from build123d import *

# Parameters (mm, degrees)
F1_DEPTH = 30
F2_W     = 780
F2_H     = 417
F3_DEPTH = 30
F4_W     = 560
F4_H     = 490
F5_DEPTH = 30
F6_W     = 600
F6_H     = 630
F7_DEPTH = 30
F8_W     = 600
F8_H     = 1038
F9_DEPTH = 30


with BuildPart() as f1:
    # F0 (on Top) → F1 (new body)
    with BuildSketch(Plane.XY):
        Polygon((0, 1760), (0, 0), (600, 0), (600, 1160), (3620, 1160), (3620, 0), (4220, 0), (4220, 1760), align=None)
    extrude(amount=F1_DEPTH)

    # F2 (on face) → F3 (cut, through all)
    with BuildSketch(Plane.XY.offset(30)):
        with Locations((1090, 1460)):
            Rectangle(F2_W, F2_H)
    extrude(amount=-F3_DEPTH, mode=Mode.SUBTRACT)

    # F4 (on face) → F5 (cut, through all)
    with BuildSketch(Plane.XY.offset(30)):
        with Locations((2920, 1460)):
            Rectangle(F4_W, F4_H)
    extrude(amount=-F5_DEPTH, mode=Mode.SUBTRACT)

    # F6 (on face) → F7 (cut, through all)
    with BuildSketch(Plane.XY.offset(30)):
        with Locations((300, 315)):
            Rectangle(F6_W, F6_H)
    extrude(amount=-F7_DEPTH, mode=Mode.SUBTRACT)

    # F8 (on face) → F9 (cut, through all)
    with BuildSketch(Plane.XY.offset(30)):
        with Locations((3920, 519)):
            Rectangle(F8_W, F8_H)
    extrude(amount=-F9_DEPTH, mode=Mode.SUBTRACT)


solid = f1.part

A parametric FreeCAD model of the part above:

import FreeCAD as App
import Part
import Sketcher
Q = App.Units.Quantity


def add_polygon(sketch, points):
    """Adds a closed chain of lines whose ends are joined by coincident constraints."""
    first, n = sketch.GeometryCount, len(points)
    for a, b in zip(points, points[1:] + points[:1]):
        sketch.addGeometry(Part.LineSegment(App.Vector(*a, 0), App.Vector(*b, 0)), False)
    for i in range(n):
        sketch.addConstraint(Sketcher.Constraint("Coincident", first + i, 2, first + (i + 1) % n, 1))

doc = App.newDocument("Part")
body = doc.addObject("PartDesign::Body", "Body")

sketch1 = doc.addObject("Sketcher::SketchObject", "Sketch")
body.addObject(sketch1)
sketch1.AttachmentSupport = (doc.XY_Plane, [""])
sketch1.MapMode = "FlatFace"
add_polygon(sketch1, [(0, 1760), (0, 0), (600, 0), (600, 1160), (3620, 1160), (3620, 0), (4220, 0), (4220, 1760)])
sketch1.addConstraint([
    Sketcher.Constraint("Vertical", 0),
    Sketcher.Constraint("Horizontal", 1),
    Sketcher.Constraint("Vertical", 2),
    Sketcher.Constraint("Horizontal", 3),
    Sketcher.Constraint("Vertical", 4),
    Sketcher.Constraint("Horizontal", 5),
    Sketcher.Constraint("Vertical", 6),
    Sketcher.Constraint("Horizontal", 7),
    Sketcher.Constraint("Coincident", 0, 2, -1, 1),
    Sketcher.Constraint("PointOnObject", 4, 2, -1),
    Sketcher.Constraint("Equal", 1, 5),
    Sketcher.Constraint("DistanceX", 1, 1, 1, 2, Q("600 mm")),
    Sketcher.Constraint("DistanceX", 3, 1, 3, 2, Q("3020 mm")),
    Sketcher.Constraint("DistanceY", 0, 2, 0, 1, Q("1760 mm")),
    Sketcher.Constraint("DistanceY", 2, 1, 2, 2, Q("1160 mm")),
])
pad1 = doc.addObject("PartDesign::Pad", "Pad")
body.addObject(pad1)
pad1.Profile = sketch1
pad1.Length = 30

sketch2 = doc.addObject("Sketcher::SketchObject", "Sketch001")
body.addObject(sketch2)
sketch2.AttachmentSupport = (doc.XY_Plane, [""])
sketch2.MapMode = "FlatFace"
sketch2.AttachmentOffset = App.Placement(App.Vector(0, 0, 30), App.Rotation())
add_polygon(sketch2, [(700, 1668), (700, 1252), (1480, 1252), (1480, 1668)])
sketch2.addConstraint([
    Sketcher.Constraint("Vertical", 0),
    Sketcher.Constraint("Horizontal", 1),
    Sketcher.Constraint("Vertical", 2),
    Sketcher.Constraint("Horizontal", 3),
    Sketcher.Constraint("DistanceX", 1, 1, 1, 2, Q("780 mm")),
    Sketcher.Constraint("DistanceY", 0, 2, 0, 1, Q("417 mm")),
    Sketcher.Constraint("DistanceX", -1, 1, 0, 2, Q("700 mm")),
    Sketcher.Constraint("DistanceY", -1, 1, 0, 2, Q("1251.5 mm")),
])
pocket1 = doc.addObject("PartDesign::Pocket", "Pocket")
body.addObject(pocket1)
pocket1.Profile = sketch2
pocket1.Type = "ThroughAll"

sketch3 = doc.addObject("Sketcher::SketchObject", "Sketch002")
body.addObject(sketch3)
sketch3.AttachmentSupport = (doc.XY_Plane, [""])
sketch3.MapMode = "FlatFace"
sketch3.AttachmentOffset = App.Placement(App.Vector(0, 0, 30), App.Rotation())
add_polygon(sketch3, [(2640, 1705), (2640, 1215), (3200, 1215), (3200, 1705)])
sketch3.addConstraint([
    Sketcher.Constraint("Vertical", 0),
    Sketcher.Constraint("Horizontal", 1),
    Sketcher.Constraint("Vertical", 2),
    Sketcher.Constraint("Horizontal", 3),
    Sketcher.Constraint("DistanceX", 1, 1, 1, 2, Q("560 mm")),
    Sketcher.Constraint("DistanceY", 0, 2, 0, 1, Q("490 mm")),
    Sketcher.Constraint("DistanceX", -1, 1, 0, 2, Q("2640 mm")),
    Sketcher.Constraint("DistanceY", -1, 1, 0, 2, Q("1215 mm")),
])
pocket2 = doc.addObject("PartDesign::Pocket", "Pocket001")
body.addObject(pocket2)
pocket2.Profile = sketch3
pocket2.Type = "ThroughAll"

sketch4 = doc.addObject("Sketcher::SketchObject", "Sketch003")
body.addObject(sketch4)
sketch4.AttachmentSupport = (doc.XY_Plane, [""])
sketch4.MapMode = "FlatFace"
sketch4.AttachmentOffset = App.Placement(App.Vector(0, 0, 30), App.Rotation())
add_polygon(sketch4, [(0, 630), (0, 0), (600, 0), (600, 630)])
sketch4.addConstraint([
    Sketcher.Constraint("Vertical", 0),
    Sketcher.Constraint("Horizontal", 1),
    Sketcher.Constraint("Vertical", 2),
    Sketcher.Constraint("Horizontal", 3),
    Sketcher.Constraint("Coincident", 0, 2, -1, 1),
    Sketcher.Constraint("DistanceX", 1, 1, 1, 2, Q("600 mm")),
    Sketcher.Constraint("DistanceY", 0, 2, 0, 1, Q("630 mm")),
])
pocket3 = doc.addObject("PartDesign::Pocket", "Pocket002")
body.addObject(pocket3)
pocket3.Profile = sketch4
pocket3.Type = "ThroughAll"

sketch5 = doc.addObject("Sketcher::SketchObject", "Sketch004")
body.addObject(sketch5)
sketch5.AttachmentSupport = (doc.XY_Plane, [""])
sketch5.MapMode = "FlatFace"
sketch5.AttachmentOffset = App.Placement(App.Vector(0, 0, 30), App.Rotation())
add_polygon(sketch5, [(3620, 1038), (3620, 0), (4220, 0), (4220, 1038)])
sketch5.addConstraint([
    Sketcher.Constraint("Vertical", 0),
    Sketcher.Constraint("Horizontal", 1),
    Sketcher.Constraint("Vertical", 2),
    Sketcher.Constraint("Horizontal", 3),
    Sketcher.Constraint("PointOnObject", 0, 2, -1),
    Sketcher.Constraint("DistanceX", 1, 1, 1, 2, Q("600 mm")),
    Sketcher.Constraint("DistanceY", 0, 2, 0, 1, Q("1038 mm")),
    Sketcher.Constraint("DistanceX", -1, 1, 0, 2, Q("3620 mm")),
])
pocket4 = doc.addObject("PartDesign::Pocket", "Pocket003")
body.addObject(pocket4)
pocket4.Profile = sketch5
pocket4.Type = "ThroughAll"

doc.recompute()
